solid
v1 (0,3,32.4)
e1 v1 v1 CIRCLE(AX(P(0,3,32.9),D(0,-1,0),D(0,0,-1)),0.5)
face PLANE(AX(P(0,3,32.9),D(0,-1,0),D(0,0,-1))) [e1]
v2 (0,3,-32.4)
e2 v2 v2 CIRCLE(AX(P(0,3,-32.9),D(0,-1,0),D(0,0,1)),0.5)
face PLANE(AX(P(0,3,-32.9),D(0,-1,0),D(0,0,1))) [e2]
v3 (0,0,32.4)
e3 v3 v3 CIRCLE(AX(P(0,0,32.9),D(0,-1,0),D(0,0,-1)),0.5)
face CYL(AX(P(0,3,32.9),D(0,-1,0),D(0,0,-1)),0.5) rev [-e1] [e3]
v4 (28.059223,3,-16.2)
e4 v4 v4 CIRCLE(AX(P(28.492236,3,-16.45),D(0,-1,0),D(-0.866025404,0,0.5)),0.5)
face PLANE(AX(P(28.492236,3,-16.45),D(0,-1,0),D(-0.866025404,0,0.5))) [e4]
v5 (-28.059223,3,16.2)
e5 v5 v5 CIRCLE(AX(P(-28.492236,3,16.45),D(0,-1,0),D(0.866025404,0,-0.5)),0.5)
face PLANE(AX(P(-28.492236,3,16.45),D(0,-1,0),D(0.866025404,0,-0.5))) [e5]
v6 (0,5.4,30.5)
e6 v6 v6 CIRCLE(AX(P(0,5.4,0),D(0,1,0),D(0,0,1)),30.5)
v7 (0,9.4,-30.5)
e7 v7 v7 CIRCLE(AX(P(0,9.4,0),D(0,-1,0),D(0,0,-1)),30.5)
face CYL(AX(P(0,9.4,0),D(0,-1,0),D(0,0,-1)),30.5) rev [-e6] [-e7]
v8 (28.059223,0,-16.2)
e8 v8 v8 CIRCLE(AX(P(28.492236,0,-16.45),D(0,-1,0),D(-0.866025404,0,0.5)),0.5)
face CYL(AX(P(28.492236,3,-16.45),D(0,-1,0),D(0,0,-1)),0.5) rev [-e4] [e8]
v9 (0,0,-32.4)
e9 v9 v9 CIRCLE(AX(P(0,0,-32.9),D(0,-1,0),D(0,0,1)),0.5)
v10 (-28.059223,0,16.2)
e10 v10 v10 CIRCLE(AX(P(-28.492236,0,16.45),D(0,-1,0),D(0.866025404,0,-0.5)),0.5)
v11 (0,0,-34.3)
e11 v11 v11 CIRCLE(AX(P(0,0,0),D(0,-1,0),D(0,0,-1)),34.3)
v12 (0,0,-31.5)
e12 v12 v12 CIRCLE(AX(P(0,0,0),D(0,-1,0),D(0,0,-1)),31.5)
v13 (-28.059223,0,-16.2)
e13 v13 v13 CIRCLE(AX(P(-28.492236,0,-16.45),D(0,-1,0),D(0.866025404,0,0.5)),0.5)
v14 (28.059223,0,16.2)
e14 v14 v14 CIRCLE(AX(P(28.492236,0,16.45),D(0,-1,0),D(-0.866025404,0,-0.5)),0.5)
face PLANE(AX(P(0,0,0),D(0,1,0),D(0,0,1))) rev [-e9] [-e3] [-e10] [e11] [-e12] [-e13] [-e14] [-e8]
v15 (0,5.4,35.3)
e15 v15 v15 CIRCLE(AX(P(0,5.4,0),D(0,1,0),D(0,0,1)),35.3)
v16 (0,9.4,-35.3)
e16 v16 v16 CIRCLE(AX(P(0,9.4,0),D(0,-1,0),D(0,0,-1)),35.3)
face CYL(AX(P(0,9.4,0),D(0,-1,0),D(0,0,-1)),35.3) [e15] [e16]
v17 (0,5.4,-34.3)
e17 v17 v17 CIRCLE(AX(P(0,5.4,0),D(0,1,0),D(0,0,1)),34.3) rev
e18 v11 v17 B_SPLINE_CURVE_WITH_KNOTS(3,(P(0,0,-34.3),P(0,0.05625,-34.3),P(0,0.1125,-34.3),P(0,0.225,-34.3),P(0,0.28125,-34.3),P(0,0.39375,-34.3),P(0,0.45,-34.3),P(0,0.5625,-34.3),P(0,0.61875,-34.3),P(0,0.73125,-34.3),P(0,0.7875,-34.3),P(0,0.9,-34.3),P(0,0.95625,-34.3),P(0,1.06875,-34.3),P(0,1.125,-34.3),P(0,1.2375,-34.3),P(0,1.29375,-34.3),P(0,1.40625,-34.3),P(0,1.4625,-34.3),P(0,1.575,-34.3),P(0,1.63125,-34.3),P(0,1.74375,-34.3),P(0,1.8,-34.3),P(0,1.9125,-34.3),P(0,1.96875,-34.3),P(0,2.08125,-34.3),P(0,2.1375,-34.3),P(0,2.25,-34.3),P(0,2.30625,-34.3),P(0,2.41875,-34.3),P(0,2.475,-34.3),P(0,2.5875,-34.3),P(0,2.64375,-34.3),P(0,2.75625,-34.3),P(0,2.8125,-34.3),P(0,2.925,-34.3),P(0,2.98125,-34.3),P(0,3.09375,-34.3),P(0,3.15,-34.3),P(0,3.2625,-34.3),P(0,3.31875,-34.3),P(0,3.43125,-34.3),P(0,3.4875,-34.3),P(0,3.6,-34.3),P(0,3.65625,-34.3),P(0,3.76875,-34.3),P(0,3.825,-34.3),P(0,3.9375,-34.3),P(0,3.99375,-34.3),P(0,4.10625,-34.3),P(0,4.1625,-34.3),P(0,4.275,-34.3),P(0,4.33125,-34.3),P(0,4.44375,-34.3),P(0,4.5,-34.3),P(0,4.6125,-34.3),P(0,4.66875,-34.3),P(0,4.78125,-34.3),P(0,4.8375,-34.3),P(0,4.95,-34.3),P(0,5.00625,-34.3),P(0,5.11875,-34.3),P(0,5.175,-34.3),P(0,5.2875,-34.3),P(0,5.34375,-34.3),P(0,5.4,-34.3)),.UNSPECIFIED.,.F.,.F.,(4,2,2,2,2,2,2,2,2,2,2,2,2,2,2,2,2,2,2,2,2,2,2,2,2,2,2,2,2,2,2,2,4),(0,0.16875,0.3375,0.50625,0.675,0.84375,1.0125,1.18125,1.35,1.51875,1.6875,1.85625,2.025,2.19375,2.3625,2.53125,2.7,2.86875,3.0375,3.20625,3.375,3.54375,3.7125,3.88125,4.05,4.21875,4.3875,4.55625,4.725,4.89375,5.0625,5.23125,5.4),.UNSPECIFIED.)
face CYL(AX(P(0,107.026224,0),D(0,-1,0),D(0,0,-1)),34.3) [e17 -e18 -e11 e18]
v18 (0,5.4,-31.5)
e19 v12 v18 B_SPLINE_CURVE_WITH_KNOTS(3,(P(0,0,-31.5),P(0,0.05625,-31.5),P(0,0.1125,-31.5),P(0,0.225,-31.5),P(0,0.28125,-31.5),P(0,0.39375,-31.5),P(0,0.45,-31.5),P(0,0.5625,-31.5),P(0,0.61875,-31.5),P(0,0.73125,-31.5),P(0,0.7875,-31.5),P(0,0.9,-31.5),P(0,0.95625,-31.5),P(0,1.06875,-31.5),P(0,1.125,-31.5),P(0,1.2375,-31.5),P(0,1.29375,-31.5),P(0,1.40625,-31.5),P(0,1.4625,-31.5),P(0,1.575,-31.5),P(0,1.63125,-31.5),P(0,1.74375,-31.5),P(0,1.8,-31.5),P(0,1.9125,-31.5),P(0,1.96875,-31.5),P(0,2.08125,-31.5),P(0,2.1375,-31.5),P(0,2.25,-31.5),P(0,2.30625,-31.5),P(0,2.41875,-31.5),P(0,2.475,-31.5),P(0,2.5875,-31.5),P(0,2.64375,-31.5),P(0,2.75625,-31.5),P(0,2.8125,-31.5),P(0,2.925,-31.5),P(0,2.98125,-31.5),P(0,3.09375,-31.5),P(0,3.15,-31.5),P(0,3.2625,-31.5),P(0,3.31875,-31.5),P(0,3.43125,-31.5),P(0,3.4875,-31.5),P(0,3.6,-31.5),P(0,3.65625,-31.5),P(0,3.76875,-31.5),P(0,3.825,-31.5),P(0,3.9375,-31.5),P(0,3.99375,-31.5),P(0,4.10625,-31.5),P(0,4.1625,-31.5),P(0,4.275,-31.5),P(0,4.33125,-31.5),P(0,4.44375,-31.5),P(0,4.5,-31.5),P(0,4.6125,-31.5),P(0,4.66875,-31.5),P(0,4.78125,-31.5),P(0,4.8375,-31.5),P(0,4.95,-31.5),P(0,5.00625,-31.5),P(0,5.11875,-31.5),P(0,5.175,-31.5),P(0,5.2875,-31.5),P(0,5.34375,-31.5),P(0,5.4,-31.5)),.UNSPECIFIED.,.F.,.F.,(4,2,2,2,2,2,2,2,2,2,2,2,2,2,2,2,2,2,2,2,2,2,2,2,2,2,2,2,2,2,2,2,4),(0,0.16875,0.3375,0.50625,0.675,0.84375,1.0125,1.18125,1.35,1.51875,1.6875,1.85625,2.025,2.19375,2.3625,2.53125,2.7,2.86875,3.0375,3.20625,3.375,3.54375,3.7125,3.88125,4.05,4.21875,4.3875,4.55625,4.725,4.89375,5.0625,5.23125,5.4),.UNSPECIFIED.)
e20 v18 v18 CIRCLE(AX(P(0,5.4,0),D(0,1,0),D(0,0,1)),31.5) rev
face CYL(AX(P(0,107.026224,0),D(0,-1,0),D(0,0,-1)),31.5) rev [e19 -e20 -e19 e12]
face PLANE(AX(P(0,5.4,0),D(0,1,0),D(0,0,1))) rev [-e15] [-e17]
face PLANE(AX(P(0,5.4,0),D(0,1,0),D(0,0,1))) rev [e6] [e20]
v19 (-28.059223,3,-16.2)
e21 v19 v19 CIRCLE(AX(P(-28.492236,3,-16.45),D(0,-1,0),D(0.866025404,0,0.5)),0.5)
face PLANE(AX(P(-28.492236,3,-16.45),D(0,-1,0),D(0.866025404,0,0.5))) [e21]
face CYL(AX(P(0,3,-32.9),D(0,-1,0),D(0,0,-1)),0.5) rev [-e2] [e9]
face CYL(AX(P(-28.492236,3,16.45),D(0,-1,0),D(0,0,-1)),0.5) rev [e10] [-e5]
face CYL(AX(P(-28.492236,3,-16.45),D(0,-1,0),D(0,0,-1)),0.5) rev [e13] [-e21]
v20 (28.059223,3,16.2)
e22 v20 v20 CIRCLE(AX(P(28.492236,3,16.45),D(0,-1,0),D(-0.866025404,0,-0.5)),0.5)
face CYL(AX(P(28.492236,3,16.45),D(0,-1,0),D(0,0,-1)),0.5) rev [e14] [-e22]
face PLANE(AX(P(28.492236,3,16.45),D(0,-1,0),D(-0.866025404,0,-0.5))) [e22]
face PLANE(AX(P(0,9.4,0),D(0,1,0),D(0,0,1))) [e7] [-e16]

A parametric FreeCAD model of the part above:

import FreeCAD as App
import Part
import Sketcher

V = App.Vector


def add_polygon(sketch, points):
    """Adds a closed chain of lines whose ends are joined by coincident constraints."""
    first, n = sketch.GeometryCount, len(points)
    for a, b in zip(points, points[1:] + points[:1]):
        sketch.addGeometry(Part.LineSegment(App.Vector(*a, 0), App.Vector(*b, 0)), False)
    for i in range(n):
        sketch.addConstraint(Sketcher.Constraint("Coincident", first + i, 2, first + (i + 1) % n, 1))

doc = App.newDocument("Part")
body = doc.addObject("PartDesign::Body", "Body")

# Sketch on XZ plane
sketch1 = doc.addObject("Sketcher::SketchObject", "Sketch")
body.addObject(sketch1)
sketch1.AttachmentSupport = (doc.XZ_Plane, [""])
sketch1.MapMode = "FlatFace"
sketch1.addGeometry([
    Part.Circle(V(0, 0, 0), V(0, 0, 1), 34.4),
    Part.Circle(V(0, 0, 0), V(0, 0, 1), 31.4),
], False)
sketch1.addConstraint([
    Sketcher.Constraint("Coincident", 0, 3, -1, 1),
    Sketcher.Constraint("Coincident", 1, 3, -1, 1),
    Sketcher.Constraint("Diameter", 0, 68.8),
    Sketcher.Constraint("Diameter", 1, 62.8),
])
pad1 = doc.addObject("PartDesign::Pad", "Pad")
body.addObject(pad1)
pad1.Profile = sketch1
pad1.Length = 5.4
pad1.Reversed = True

# Sketch on XZ plane
sketch2 = doc.addObject("Sketcher::SketchObject", "Sketch001")
body.addObject(sketch2)
sketch2.AttachmentSupport = (doc.XZ_Plane, [""])
sketch2.MapMode = "FlatFace"
sketch2.AttachmentOffset = App.Placement(V(0, 0, -5.4), App.Rotation())
sketch2.addGeometry([
    Part.Circle(V(0, 0, 0), V(0, 0, 1), 35.4),
    Part.Circle(V(0, 0, 0), V(0, 0, 1), 30.4),
], False)
sketch2.addConstraint([
    Sketcher.Constraint("Coincident", 0, 3, -1, 1),
    Sketcher.Constraint("Coincident", 1, 3, -1, 1),
    Sketcher.Constraint("Diameter", 0, 70.8),
    Sketcher.Constraint("Diameter", 1, 60.8),
])
pad2 = doc.addObject("PartDesign::Pad", "Pad001")
body.addObject(pad2)
pad2.Profile = sketch2
pad2.Length = 4
pad2.Reversed = True

# Sketch on XZ plane
sketch3 = doc.addObject("Sketcher::SketchObject", "Sketch002")
body.addObject(sketch3)
sketch3.AttachmentSupport = (doc.XZ_Plane, [""])
sketch3.MapMode = "FlatFace"
sketch3.addGeometry(Part.Circle(V(0, 32.9, 0), V(0, 0, 1), 0.5), False)
sketch3.addConstraint([
    Sketcher.Constraint("PointOnObject", 0, 3, -2),
    Sketcher.Constraint("Diameter", 0, 1.0),
    Sketcher.Constraint("DistanceY", -1, 1, 0, 3, 32.9),
])
pocket1 = doc.addObject("PartDesign::Pocket", "Pocket")
body.addObject(pocket1)
pocket1.Profile = sketch3
pocket1.Length = 3
doc.recompute()

polarpattern = doc.addObject("PartDesign::PolarPattern", "PolarPattern")
body.addObject(polarpattern)
polarpattern.Originals = [pocket1]
polarpattern.Axis = (doc.Y_Axis, [""])
polarpattern.Angle = 360
polarpattern.Occurrences = 6
body.Tip = polarpattern

# Sketch on XZ plane
sketch4 = doc.addObject("Sketcher::SketchObject", "Sketch003")
body.addObject(sketch4)
sketch4.AttachmentSupport = (doc.XZ_Plane, [""])
sketch4.MapMode = "FlatFace"
add_polygon(sketch4, [(-46.457, 46.457), (-46.457, -46.457), (46.457, -46.457), (46.457, 46.457)])  # lines 0-3
sketch4.addGeometry(Part.Circle(V(0, 0, 0), V(0, 0, 1), 34.3), False)  # 4
sketch4.addGeometry(Part.Circle(V(0, 0, 0), V(0, 0, 1), 31.5), False)  # 5
sketch4.addConstraint([
    Sketcher.Constraint("Vertical", 0),
    Sketcher.Constraint("Horizontal", 1),
    Sketcher.Constraint("Vertical", 2),
    Sketcher.Constraint("Horizontal", 3),
    Sketcher.Constraint("Coincident", 4, 3, -1, 1),
    Sketcher.Constraint("Coincident", 5, 3, -1, 1),
    Sketcher.Constraint("Symmetric", 0, 2, 2, 2, -1, 1),
    Sketcher.Constraint("Equal", 3, 0),
    Sketcher.Constraint("Diameter", 5, 63.0),
    Sketcher.Constraint("Diameter", 4, 68.6),
    Sketcher.Constraint("DistanceX", 1, 1, 1, 2, 92.914),
])
pocket2 = doc.addObject("PartDesign::Pocket", "Pocket001")
body.addObject(pocket2)
pocket2.Profile = sketch4
pocket2.Length = 5.4

# Sketch on XZ plane
sketch5 = doc.addObject("Sketcher::SketchObject", "Sketch004")
body.addObject(sketch5)
sketch5.AttachmentSupport = (doc.XZ_Plane, [""])
sketch5.MapMode = "FlatFace"
add_polygon(sketch5, [(-46.457, 46.457), (-46.457, -46.457), (46.457, -46.457), (46.457, 46.457)])  # lines 0-3
sketch5.addGeometry(Part.Circle(V(0, 0, 0), V(0, 0, 1), 35.3), False)  # 4
sketch5.addGeometry(Part.Circle(V(0, 0, 0), V(0, 0, 1), 30.5), False)  # 5
sketch5.addConstraint([
    Sketcher.Constraint("Vertical", 0),
    Sketcher.Constraint("Horizontal", 1),
    Sketcher.Constraint("Vertical", 2),
    Sketcher.Constraint("Horizontal", 3),
    Sketcher.Constraint("Coincident", 4, 3, -1, 1),
    Sketcher.Constraint("Coincident", 5, 3, -1, 1),
    Sketcher.Constraint("Symmetric", 0, 2, 2, 2, -1, 1),
    Sketcher.Constraint("Equal", 3, 0),
    Sketcher.Constraint("Diameter", 5, 61.0),
    Sketcher.Constraint("Diameter", 4, 70.6),
    Sketcher.Constraint("DistanceX", 1, 1, 1, 2, 92.914),
])
pocket3 = doc.addObject("PartDesign::Pocket", "Pocket002")
body.addObject(pocket3)
pocket3.Profile = sketch5
pocket3.Length = 51.938002

doc.recompute()
